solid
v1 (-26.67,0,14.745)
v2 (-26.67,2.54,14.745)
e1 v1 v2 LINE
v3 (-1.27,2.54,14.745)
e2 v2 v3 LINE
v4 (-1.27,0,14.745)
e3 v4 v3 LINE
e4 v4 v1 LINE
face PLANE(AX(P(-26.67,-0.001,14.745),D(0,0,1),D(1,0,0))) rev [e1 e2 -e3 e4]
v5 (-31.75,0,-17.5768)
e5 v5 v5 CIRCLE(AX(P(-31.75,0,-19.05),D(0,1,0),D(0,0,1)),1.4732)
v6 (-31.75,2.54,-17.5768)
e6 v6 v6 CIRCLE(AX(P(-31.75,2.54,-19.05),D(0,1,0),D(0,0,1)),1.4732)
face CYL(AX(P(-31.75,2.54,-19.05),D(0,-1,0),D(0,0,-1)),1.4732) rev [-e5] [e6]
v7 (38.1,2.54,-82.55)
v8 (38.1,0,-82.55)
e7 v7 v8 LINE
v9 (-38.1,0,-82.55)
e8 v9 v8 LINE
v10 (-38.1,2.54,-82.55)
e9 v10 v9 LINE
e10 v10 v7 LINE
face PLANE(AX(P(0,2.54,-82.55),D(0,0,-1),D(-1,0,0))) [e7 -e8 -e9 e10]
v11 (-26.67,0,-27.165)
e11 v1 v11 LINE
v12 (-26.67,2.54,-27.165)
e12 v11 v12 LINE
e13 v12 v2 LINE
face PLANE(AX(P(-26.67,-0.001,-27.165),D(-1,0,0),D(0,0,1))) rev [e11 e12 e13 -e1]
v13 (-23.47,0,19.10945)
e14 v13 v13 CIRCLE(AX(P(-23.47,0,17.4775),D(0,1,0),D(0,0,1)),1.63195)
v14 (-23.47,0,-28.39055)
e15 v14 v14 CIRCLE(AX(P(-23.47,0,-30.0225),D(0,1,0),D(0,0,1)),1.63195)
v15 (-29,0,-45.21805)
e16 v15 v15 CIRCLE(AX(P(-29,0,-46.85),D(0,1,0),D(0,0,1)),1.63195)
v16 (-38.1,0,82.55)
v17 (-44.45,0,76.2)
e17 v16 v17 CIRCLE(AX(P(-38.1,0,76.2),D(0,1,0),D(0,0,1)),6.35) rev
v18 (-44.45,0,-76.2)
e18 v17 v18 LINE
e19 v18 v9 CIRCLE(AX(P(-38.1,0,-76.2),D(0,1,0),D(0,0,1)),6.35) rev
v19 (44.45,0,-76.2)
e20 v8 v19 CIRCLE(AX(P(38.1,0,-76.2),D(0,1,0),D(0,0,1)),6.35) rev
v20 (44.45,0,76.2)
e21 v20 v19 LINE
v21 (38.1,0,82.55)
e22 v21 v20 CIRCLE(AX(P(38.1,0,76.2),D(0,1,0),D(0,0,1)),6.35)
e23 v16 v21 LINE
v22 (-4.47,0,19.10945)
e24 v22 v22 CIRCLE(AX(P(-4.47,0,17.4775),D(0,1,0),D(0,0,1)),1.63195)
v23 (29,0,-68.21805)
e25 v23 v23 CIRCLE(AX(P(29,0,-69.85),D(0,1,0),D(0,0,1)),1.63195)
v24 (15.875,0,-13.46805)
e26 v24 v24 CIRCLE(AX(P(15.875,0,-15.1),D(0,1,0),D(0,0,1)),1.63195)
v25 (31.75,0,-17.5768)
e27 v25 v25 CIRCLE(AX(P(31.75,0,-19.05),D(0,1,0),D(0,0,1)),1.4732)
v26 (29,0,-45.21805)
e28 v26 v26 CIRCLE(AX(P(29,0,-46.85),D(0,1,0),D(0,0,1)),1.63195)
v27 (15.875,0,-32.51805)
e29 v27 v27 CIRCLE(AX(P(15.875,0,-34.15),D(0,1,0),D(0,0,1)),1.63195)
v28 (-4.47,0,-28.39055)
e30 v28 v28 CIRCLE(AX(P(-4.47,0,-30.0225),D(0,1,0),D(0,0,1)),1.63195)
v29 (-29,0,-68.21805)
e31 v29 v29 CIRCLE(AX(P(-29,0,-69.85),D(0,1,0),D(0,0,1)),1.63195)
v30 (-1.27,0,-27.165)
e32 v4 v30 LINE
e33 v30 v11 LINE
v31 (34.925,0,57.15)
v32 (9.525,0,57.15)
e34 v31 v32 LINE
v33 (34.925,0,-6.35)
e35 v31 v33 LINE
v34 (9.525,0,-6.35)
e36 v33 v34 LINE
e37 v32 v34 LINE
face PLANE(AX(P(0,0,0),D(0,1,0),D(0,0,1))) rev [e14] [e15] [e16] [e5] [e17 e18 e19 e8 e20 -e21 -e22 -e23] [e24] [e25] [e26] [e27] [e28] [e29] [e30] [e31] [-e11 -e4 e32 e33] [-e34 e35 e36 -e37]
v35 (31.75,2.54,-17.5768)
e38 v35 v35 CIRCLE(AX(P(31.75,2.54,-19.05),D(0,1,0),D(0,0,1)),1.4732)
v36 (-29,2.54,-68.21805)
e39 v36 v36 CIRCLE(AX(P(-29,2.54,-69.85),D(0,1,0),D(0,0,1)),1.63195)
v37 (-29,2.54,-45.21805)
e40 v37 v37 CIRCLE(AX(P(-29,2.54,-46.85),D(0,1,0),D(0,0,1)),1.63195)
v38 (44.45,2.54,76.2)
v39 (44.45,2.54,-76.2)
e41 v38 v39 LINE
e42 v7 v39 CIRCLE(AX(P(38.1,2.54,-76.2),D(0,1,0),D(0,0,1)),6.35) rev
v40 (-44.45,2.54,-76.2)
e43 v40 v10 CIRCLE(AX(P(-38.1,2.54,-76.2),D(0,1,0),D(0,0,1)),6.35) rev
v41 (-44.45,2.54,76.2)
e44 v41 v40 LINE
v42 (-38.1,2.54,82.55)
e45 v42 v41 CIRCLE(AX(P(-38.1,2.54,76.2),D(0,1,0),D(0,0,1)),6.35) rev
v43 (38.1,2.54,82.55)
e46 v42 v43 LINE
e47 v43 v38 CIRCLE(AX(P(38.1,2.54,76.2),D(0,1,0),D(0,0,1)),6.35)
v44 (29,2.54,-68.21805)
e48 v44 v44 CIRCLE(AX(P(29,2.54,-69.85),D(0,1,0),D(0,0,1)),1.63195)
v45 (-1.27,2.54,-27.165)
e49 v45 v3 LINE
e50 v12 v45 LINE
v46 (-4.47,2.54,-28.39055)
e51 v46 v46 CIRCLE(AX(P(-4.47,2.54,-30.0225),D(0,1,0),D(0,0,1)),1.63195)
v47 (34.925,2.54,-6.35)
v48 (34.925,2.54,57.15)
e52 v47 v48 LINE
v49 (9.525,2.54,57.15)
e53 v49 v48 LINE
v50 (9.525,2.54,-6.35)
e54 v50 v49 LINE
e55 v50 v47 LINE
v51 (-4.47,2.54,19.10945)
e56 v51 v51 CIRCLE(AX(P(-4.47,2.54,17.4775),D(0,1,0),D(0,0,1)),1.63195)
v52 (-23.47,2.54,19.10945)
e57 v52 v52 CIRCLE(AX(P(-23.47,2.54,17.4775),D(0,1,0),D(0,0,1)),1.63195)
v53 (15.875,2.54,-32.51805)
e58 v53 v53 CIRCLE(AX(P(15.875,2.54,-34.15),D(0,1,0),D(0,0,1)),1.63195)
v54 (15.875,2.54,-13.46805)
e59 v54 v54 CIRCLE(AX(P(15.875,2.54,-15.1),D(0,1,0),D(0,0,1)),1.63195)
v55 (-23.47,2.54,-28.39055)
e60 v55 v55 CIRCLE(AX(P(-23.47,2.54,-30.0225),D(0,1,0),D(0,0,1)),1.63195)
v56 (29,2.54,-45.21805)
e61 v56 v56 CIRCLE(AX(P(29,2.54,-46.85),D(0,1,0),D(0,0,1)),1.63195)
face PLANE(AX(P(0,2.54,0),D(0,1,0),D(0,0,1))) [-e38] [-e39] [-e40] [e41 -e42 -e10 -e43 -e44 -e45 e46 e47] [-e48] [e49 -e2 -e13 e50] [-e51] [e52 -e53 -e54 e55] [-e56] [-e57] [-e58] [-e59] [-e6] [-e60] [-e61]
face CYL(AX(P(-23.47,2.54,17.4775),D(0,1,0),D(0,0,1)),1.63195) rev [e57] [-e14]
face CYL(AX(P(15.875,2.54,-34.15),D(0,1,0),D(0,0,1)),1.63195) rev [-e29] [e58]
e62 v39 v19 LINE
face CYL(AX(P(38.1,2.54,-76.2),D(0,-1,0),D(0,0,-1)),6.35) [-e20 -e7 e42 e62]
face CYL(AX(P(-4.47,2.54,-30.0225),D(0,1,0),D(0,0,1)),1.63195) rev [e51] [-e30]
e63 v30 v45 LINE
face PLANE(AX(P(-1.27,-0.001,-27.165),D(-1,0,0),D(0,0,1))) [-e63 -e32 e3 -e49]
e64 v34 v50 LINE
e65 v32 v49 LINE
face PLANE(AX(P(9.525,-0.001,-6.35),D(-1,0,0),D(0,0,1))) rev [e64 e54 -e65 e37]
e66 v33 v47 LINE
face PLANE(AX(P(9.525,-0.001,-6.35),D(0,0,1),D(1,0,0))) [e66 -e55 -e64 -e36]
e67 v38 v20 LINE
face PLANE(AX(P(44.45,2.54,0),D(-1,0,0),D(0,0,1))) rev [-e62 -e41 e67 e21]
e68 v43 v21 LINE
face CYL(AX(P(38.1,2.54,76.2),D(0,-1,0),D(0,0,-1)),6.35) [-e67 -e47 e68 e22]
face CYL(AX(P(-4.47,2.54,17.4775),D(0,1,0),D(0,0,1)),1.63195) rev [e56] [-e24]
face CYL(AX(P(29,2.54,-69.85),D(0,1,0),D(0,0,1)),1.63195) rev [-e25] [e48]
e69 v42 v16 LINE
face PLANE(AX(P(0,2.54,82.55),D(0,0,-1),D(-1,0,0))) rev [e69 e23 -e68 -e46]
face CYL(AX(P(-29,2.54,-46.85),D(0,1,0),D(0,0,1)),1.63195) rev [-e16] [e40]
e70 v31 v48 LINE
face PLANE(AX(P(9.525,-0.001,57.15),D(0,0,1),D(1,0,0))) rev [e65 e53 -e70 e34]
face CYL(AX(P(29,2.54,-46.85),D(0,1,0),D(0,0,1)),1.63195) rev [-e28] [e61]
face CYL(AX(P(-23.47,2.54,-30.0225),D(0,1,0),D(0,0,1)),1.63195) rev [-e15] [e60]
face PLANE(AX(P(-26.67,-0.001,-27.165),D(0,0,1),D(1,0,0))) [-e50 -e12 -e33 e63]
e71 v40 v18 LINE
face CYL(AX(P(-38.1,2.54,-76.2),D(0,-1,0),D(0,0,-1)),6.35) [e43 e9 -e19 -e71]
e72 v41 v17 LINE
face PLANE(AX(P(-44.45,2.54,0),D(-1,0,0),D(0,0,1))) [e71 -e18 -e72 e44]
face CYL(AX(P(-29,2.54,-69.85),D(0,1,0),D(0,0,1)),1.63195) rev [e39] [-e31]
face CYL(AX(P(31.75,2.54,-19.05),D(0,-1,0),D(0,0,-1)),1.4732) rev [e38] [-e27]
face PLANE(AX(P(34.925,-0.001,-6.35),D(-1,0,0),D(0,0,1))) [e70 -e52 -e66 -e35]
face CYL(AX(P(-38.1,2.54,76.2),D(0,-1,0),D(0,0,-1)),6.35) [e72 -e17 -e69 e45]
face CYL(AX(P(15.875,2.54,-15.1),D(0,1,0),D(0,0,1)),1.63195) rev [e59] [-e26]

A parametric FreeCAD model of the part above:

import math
import FreeCAD as App
import Part
import Sketcher
from FreeCAD import Vector
Q = App.Units.Quantity


def add_polygon(sketch, points):
    """Adds a closed chain of lines whose ends are joined by coincident constraints."""
    first, n = sketch.GeometryCount, len(points)
    for a, b in zip(points, points[1:] + points[:1]):
        sketch.addGeometry(Part.LineSegment(App.Vector(*a, 0), App.Vector(*b, 0)), False)
    for i in range(n):
        sketch.addConstraint(Sketcher.Constraint("Coincident", first + i, 2, first + (i + 1) % n, 1))

doc = App.newDocument("Part")
body = doc.addObject("PartDesign::Body", "Body")

sketch1 = body.newObject("Sketcher::SketchObject", "Sketch")
sketch1.AttachmentSupport = (doc.getObject("XZ_Plane"), [""])
sketch1.MapMode = "FlatFace"
sketch1.addGeometry([
    Part.ArcOfCircle(Part.Circle(Vector(-38.1, -76.2, 0), Vector(0, 0, 1), 6.3), math.radians(180), math.radians(270)),
    Part.LineSegment(Vector(-44.5, -76.2, 0), Vector(-44.5, 76.2, 0)),
    Part.ArcOfCircle(Part.Circle(Vector(-38.1, 76.2, 0), Vector(0, 0, 1), 6.3), math.radians(90), math.radians(180)),
    Part.LineSegment(Vector(-38.1, 82.5, 0), Vector(38.1, 82.5, 0)),
    Part.ArcOfCircle(Part.Circle(Vector(38.1, 76.2, 0), Vector(0, 0, 1), 6.3), math.radians(0), math.radians(90)),
    Part.LineSegment(Vector(44.5, 76.2, 0), Vector(44.5, -76.2, 0)),
    Part.ArcOfCircle(Part.Circle(Vector(38.1, -76.2, 0), Vector(0, 0, 1), 6.3), math.radians(-90), math.radians(0)),
    Part.LineSegment(Vector(38.1, -82.5, 0), Vector(-38.1, -82.5, 0)),
    Part.Circle(Vector(31.8, -19.1, 0), Vector(0, 0, 1), 1.5),
    Part.Circle(Vector(-31.8, -19.1, 0), Vector(0, 0, 1), 1.5),
], False)
sketch1.addConstraint([
    Sketcher.Constraint("Tangent", 0, 1, 1, 1),
    Sketcher.Constraint("Tangent", 1, 2, 2, 2),
    Sketcher.Constraint("Tangent", 2, 1, 3, 1),
    Sketcher.Constraint("Tangent", 3, 2, 4, 2),
    Sketcher.Constraint("Tangent", 4, 1, 5, 1),
    Sketcher.Constraint("Tangent", 5, 2, 6, 2),
    Sketcher.Constraint("Tangent", 6, 1, 7, 1),
    Sketcher.Constraint("Tangent", 7, 2, 0, 2),
    Sketcher.Constraint("Vertical", 1),
    Sketcher.Constraint("Horizontal", 3),
    Sketcher.Constraint("Vertical", 5),
    Sketcher.Constraint("Horizontal", 7),
    Sketcher.Constraint("Equal", 0, 2),
    Sketcher.Constraint("Equal", 2, 4),
    Sketcher.Constraint("Equal", 4, 6),
    Sketcher.Constraint("Equal", 8, 9),
    Sketcher.Constraint("Symmetric", 0, 3, 4, 3, -1, 1),
    Sketcher.Constraint("Symmetric", 8, 3, 9, 3, -2),
    Sketcher.Constraint("DistanceX", 3, 1, 3, 2, Q("3 in")),
    Sketcher.Constraint("DistanceY", 1, 1, 1, 2, Q("6 in")),
    Sketcher.Constraint("Radius", 0, Q("0.25 in")),
    Sketcher.Constraint("Diameter", 8, Q("0.116 in")),
    Sketcher.Constraint("DistanceX", 0, 1, 8, 3, Q("3 in")),
    Sketcher.Constraint("DistanceY", 9, 3, 2, 1, Q("4 in")),
])
pad1 = body.newObject("PartDesign::Pad", "Pad")
pad1.Profile = sketch1
pad1.Length = Q("0.1 in")
pad1.Reversed = True

sketch2 = body.newObject("Sketcher::SketchObject", "Sketch001")
sketch2.AttachmentSupport = (doc.getObject("XZ_Plane"), [""])
sketch2.MapMode = "FlatFace"
sketch2.AttachmentOffset = App.Placement(Vector(0, 0, -0.1 * 25.4), App.Rotation())
sketch2.addGeometry([
    Part.Circle(Vector(-29, -69.8, 0), Vector(0, 0, 1), 1.6),
    Part.Circle(Vector(29, -69.8, 0), Vector(0, 0, 1), 1.6),
    Part.Circle(Vector(29, -46.9, 0), Vector(0, 0, 1), 1.6),
    Part.Circle(Vector(-29, -46.9, 0), Vector(0, 0, 1), 1.6),
    Part.Circle(Vector(-23.5, -30, 0), Vector(0, 0, 1), 1.6),
    Part.Circle(Vector(-4.5, -30, 0), Vector(0, 0, 1), 1.6),
    Part.Circle(Vector(-4.5, 17.5, 0), Vector(0, 0, 1), 1.6),
    Part.Circle(Vector(-23.5, 17.5, 0), Vector(0, 0, 1), 1.6),
    Part.Circle(Vector(15.9, -34.1, 0), Vector(0, 0, 1), 1.6),
    Part.Circle(Vector(15.9, -15.1, 0), Vector(0, 0, 1), 1.6),
], False)
sketch2.addConstraint([
    Sketcher.Constraint("Equal", 0, 1),
    Sketcher.Constraint("Equal", 1, 2),
    Sketcher.Constraint("Equal", 2, 3),
    Sketcher.Constraint("Equal", 3, 4),
    Sketcher.Constraint("Equal", 4, 5),
    Sketcher.Constraint("Equal", 5, 6),
    Sketcher.Constraint("Equal", 6, 7),
    Sketcher.Constraint("Equal", 7, 8),
    Sketcher.Constraint("Equal", 8, 9),
    Sketcher.Constraint("Symmetric", 0, 3, 1, 3, -2),
    Sketcher.Constraint("Symmetric", 2, 3, 3, 3, -2),
    Sketcher.Constraint("Horizontal", 4, 3, 5, 3),
    Sketcher.Constraint("Horizontal", 6, 3, 7, 3),
    Sketcher.Constraint("Vertical", 1, 3, 2, 3),
    Sketcher.Constraint("Vertical", 5, 3, 6, 3),
    Sketcher.Constraint("Vertical", 4, 3, 7, 3),
    Sketcher.Constraint("Vertical", 8, 3, 9, 3),
    Sketcher.Constraint("Diameter", 0, Q("0.1285 in")),
    Sketcher.Constraint("DistanceY", 2, 3, 8, 3, Q("0.5 in")),
    Sketcher.Constraint("DistanceY", 0, 3, -1, 1, Q("2.75 in")),
    Sketcher.Constraint("DistanceY", 8, 3, 9, 3, Q("0.75 in")),
    Sketcher.Constraint("DistanceX", -1, 1, 8, 3, Q("0.625 in")),
    Sketcher.Constraint("DistanceY", 3, 3, 4, 3, Q("0.6625 in")),
    Sketcher.Constraint("DistanceX", 0, 3, -1, 1, Q("29 mm")),
    Sketcher.Constraint("DistanceY", 2, 3, -1, 1, Q("46.85 mm")),
    Sketcher.Constraint("DistanceX", 4, 3, -1, 1, Q("23.47 mm")),
    Sketcher.Constraint("DistanceX", 5, 3, -1, 1, Q("4.47 mm")),
    Sketcher.Constraint("DistanceY", -1, 1, 6, 3, Q("17.4775 mm")),
])
doc.recompute()
hole = body.newObject("PartDesign::Hole", "Hole")
hole.Profile = sketch2
hole.ThreadType = "None"
hole.Diameter = Q("0.1285 in")
hole.DepthType = "ThroughAll"
hole.Reversed = True

sketch3 = body.newObject("Sketcher::SketchObject", "Sketch002")
sketch3.AttachmentSupport = (doc.getObject("XZ_Plane"), [""])
sketch3.MapMode = "FlatFace"
sketch3.AttachmentOffset = App.Placement(Vector(0, 0, -0.1 * 25.4), App.Rotation())
add_polygon(sketch3, [(10, -6), (10, 57), (35, 57), (35, -6)])
sketch3.addConstraint([
    Sketcher.Constraint("Vertical", 0),
    Sketcher.Constraint("Horizontal", 1),
    Sketcher.Constraint("Vertical", 2),
    Sketcher.Constraint("Horizontal", 3),
    Sketcher.Constraint("DistanceX", 1, 1, 1, 2, Q("1 in")),
    Sketcher.Constraint("DistanceY", 0, 1, 0, 2, Q("2.5 in")),
    Sketcher.Constraint("DistanceY", -1, 1, 0, 2, Q("2.25 in")),
    Sketcher.Constraint("DistanceX", -1, 1, 0, 2, Q("0.375 in")),
])
pocket1 = body.newObject("PartDesign::Pocket", "Pocket")
pocket1.Profile = sketch3
pocket1.Type = "UpToFirst"
pocket1.Reversed = True

sketch4 = body.newObject("Sketcher::SketchObject", "Sketch003")
sketch4.AttachmentSupport = (doc.getObject("XZ_Plane"), [""])
sketch4.MapMode = "FlatFace"
sketch4.AttachmentOffset = App.Placement(Vector(0, 0, -0.1 * 25.4), App.Rotation())
add_polygon(sketch4, [(-27, -27), (-27, 15), (-1, 15), (-1, -27)])
sketch4.addConstraint([
    Sketcher.Constraint("Vertical", 0),
    Sketcher.Constraint("Horizontal", 1),
    Sketcher.Constraint("Vertical", 2),
    Sketcher.Constraint("Horizontal", 3),
    Sketcher.Constraint("DistanceX", 1, 1, 1, 2, Q("1 in")),
    Sketcher.Constraint("DistanceY", 0, 1, 0, 2, Q("1.65 in")),
    Sketcher.Constraint("DistanceX", 0, 2, -1, 1, Q("1.05 in")),
    Sketcher.Constraint("DistanceY", -1, 1, 0, 2, Q("14.745 mm")),
])
pocket2 = body.newObject("PartDesign::Pocket", "Pocket001")
pocket2.Profile = sketch4
pocket2.Type = "UpToFirst"
pocket2.Reversed = True

doc.recompute()
